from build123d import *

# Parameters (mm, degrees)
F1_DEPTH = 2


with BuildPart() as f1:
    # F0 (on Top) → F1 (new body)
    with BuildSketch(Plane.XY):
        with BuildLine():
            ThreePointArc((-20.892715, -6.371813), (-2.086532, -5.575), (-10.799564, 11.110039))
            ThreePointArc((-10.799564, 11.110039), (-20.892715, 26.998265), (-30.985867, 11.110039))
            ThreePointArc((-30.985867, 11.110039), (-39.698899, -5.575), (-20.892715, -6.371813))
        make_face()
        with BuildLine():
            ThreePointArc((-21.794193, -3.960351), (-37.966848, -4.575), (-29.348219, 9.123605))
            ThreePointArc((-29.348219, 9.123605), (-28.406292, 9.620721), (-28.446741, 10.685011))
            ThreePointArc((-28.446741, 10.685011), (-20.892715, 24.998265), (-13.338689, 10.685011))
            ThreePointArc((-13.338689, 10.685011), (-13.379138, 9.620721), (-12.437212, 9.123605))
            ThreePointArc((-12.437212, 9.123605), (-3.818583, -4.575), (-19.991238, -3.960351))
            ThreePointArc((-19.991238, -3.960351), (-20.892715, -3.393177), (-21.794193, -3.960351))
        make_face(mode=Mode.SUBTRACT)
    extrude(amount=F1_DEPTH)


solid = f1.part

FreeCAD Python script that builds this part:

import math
import FreeCAD as App
import Part
import Sketcher
from FreeCAD import Vector

doc = App.newDocument("Part")
body = doc.addObject("PartDesign::Body", "Body")

sketch1 = body.newObject("Sketcher::SketchObject", "Sketch")
sketch1.AttachmentSupport = (doc.getObject("XY_Plane"), [""])
sketch1.MapMode = "FlatFace"
sketch1.addGeometry([
    Part.ArcOfCircle(Part.Circle(Vector(-11.7, 0, 0), Vector(0, 0, 1), 11.1), math.radians(-145), math.radians(85)),
    Part.ArcOfCircle(Part.Circle(Vector(-20.9, 15.8, 0), Vector(0, 0, 1), 11.1), math.radians(-25), math.radians(205)),
    Part.ArcOfCircle(Part.Circle(Vector(-30, 0, 0), Vector(0, 0, 1), 11.2), math.radians(95), math.radians(325)),
    Part.ArcOfCircle(Part.Circle(Vector(-20.9, -4.4, 0), Vector(0, 0, 1), 1), math.radians(26), math.radians(154)),
    Part.ArcOfCircle(Part.Circle(Vector(-30, 0, 0), Vector(0, 0, 1), 9.1), math.radians(86), math.radians(334)),
    Part.ArcOfCircle(Part.Circle(Vector(-29.3, 10.1, 0), Vector(0, 0, 1), 1), math.radians(-94), math.radians(34)),
    Part.ArcOfCircle(Part.Circle(Vector(-20.9, 15.8, 0), Vector(0, 0, 1), 9.2), math.radians(-34), math.radians(214)),
    Part.ArcOfCircle(Part.Circle(Vector(-12.5, 10.1, 0), Vector(0, 0, 1), 1), math.radians(146), math.radians(274)),
    Part.ArcOfCircle(Part.Circle(Vector(-11.7, 0, 0), Vector(0, 0, 1), 9.1), math.radians(-154), math.radians(94)),
], False)
sketch1.addConstraint([
    Sketcher.Constraint("Coincident", 0, 2, 1, 1),
    Sketcher.Constraint("Coincident", 1, 2, 2, 1),
    Sketcher.Constraint("Coincident", 2, 2, 0, 1),
    Sketcher.Constraint("Tangent", 3, 2, 4, 2),
    Sketcher.Constraint("Tangent", 4, 1, 5, 1),
    Sketcher.Constraint("Tangent", 5, 2, 6, 2),
    Sketcher.Constraint("Tangent", 6, 1, 7, 1),
    Sketcher.Constraint("Tangent", 7, 2, 8, 2),
    Sketcher.Constraint("Tangent", 8, 1, 3, 1),
    Sketcher.Constraint("Coincident", 4, 3, 2, 3),
    Sketcher.Constraint("Coincident", 6, 3, 1, 3),
    Sketcher.Constraint("Coincident", 8, 3, 0, 3),
    Sketcher.Constraint("Equal", 0, 1),
    Sketcher.Constraint("Equal", 1, 2),
    Sketcher.Constraint("Equal", 3, 5),
    Sketcher.Constraint("Equal", 4, 6),
    Sketcher.Constraint("Equal", 5, 7),
    Sketcher.Constraint("Equal", 6, 8),
    Sketcher.Constraint("PointOnObject", 0, 3, -1),
    Sketcher.Constraint("PointOnObject", 2, 3, -1),
    Sketcher.Constraint("Horizontal", 5, 3, 7, 3),
    Sketcher.Constraint("Radius", 3, 1.0),
    Sketcher.Constraint("Radius", 0, 11.15),
    Sketcher.Constraint("Radius", 4, 9.15),
    Sketcher.Constraint("DistanceX", 2, 3, 0, 3, 18.3),
    Sketcher.Constraint("DistanceX", 4, 1, 5, 3, 0.075901),
    Sketcher.Constraint("DistanceX", 5, 3, -1, 1, 29.272318),
])
pad1 = body.newObject("PartDesign::Pad", "Pad")
pad1.Profile = sketch1
pad1.Length = 2

doc.recompute()
